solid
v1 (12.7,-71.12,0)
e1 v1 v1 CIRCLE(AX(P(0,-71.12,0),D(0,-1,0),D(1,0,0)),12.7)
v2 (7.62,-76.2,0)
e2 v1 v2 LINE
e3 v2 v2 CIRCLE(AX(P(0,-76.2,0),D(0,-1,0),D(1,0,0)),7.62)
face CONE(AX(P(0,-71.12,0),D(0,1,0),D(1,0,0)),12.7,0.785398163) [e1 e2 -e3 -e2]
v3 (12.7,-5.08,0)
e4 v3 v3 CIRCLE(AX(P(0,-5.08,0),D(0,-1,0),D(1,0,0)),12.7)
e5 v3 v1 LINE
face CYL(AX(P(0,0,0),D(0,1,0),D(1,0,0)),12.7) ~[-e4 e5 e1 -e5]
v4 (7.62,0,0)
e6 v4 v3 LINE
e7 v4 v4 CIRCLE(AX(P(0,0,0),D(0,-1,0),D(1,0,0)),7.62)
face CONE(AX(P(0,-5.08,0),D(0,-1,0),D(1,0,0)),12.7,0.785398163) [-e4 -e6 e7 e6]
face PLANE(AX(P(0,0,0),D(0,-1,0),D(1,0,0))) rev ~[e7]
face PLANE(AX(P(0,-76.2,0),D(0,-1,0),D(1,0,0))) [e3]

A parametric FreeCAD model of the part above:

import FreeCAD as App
import Part
import Sketcher
from FreeCAD import Vector
Q = App.Units.Quantity


def edges_at(feature, points):
    """Names of the edges that pass closest to the given points."""
    edges = feature.Shape.Edges
    near = lambda p: min(range(len(edges)), key=lambda i: edges[i].distToShape(Part.Vertex(*p))[0])
    return sorted({f"Edge{near(p) + 1}" for p in points})

doc = App.newDocument("Part")
params = doc.addObject("Spreadsheet::Sheet", "Params")
for row, (alias, value) in enumerate([
    ("sketch1_diameter", "1 in"),
    ("sketch1_diameter2", "0.4 in"),
    ("pad1_length", "3 in"),
    ("sketch2_diameter", "0.4 in"),
    ("pad2_length", "3 in"),
    ("chamfer_size", "0.2 in"),
], start=1):
    params.set(f"A{row}", alias)
    params.set(f"B{row}", "=" + value)
    params.setAlias(f"B{row}", alias)

body = doc.addObject("PartDesign::Body", "Body")

# Sketch on XZ plane
sketch1 = body.newObject("Sketcher::SketchObject", "Sketch")
sketch1.AttachmentSupport = (doc.getObject("XZ_Plane"), [""])
sketch1.MapMode = "FlatFace"
sketch1.addGeometry([
    Part.Circle(Vector(0, 0, 0), Vector(0, 0, 1), 13),
    Part.Circle(Vector(0, 0, 0), Vector(0, 0, 1), 5),
], False)
sketch1.addConstraint([
    Sketcher.Constraint("Coincident", 0, 3, -1, 1),
    Sketcher.Constraint("Coincident", 1, 3, -1, 1),
    Sketcher.Constraint("Diameter", 0, Q("1 in")),
    Sketcher.Constraint("Diameter", 1, Q("0.4 in")),
])
sketch1.setExpression("Constraints[2]", "Params.sketch1_diameter")
sketch1.setExpression("Constraints[3]", "Params.sketch1_diameter2")
pad1 = body.newObject("PartDesign::Pad", "Pad")
pad1.Profile = sketch1
pad1.setExpression("Length", "Params.pad1_length")

# Sketch on XZ plane
sketch2 = body.newObject("Sketcher::SketchObject", "Sketch001")
sketch2.AttachmentSupport = (doc.getObject("XZ_Plane"), [""])
sketch2.MapMode = "FlatFace"
sketch2.addGeometry(Part.Circle(Vector(0, 0, 0), Vector(0, 0, 1), 5), False)
sketch2.addConstraint([
    Sketcher.Constraint("Coincident", 0, 3, -1, 1),
    Sketcher.Constraint("Diameter", 0, Q("0.4 in")),
])
sketch2.setExpression("Constraints[1]", "Params.sketch2_diameter")
pad2 = body.newObject("PartDesign::Pad", "Pad001")
pad2.Profile = sketch2
pad2.setExpression("Length", "Params.pad2_length")
doc.recompute()

chamfer = body.newObject("PartDesign::Chamfer", "Chamfer")
chamfer.Base = (pad2, edges_at(pad2, [(-12.7, -76.2, 0), (-12.7, 0, 0)]))
chamfer.setExpression("Size", "Params.chamfer_size")

doc.recompute()
